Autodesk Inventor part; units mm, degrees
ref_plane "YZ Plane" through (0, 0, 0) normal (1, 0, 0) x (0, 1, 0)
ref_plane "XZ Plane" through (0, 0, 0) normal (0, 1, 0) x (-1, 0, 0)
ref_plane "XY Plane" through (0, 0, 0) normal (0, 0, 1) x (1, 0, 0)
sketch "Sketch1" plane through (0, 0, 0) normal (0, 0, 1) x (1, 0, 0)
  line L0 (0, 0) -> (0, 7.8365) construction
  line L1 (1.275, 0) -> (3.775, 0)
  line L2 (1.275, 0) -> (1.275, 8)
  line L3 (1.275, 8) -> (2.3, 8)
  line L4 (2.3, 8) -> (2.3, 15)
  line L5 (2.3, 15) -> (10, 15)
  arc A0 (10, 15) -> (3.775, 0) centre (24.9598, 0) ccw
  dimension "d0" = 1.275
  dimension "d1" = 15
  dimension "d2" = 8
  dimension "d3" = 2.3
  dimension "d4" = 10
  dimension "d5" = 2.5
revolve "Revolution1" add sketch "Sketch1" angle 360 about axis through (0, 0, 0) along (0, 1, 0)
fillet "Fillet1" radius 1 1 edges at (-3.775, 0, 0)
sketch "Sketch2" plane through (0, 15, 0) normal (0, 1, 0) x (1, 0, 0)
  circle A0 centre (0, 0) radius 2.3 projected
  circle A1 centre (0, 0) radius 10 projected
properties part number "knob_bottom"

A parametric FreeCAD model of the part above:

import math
import FreeCAD as App
import Part
import Sketcher


def edges_at(feature, points):
    """Names of the edges that pass closest to the given points."""
    edges = feature.Shape.Edges
    near = lambda p: min(range(len(edges)), key=lambda i: edges[i].distToShape(Part.Vertex(*p))[0])
    return sorted({f"Edge{near(p) + 1}" for p in points})

doc = App.newDocument("Part")
body = doc.addObject("PartDesign::Body", "Body")

# Sketch on XY plane
sketch1 = doc.addObject("Sketcher::SketchObject", "Sketch")
body.addObject(sketch1)
sketch1.AttachmentSupport = (doc.XY_Plane, [""])
sketch1.MapMode = "FlatFace"
sketch1.addGeometry([
    Part.LineSegment(App.Vector(1.275, 8, 0), App.Vector(1.275, 0, 0)),  # 0
    Part.LineSegment(App.Vector(1.275, 0, 0), App.Vector(3.775, 0, 0)),  # 1
    Part.ArcOfCircle(Part.Circle(App.Vector(24.9598, 0, 0), App.Vector(0, 0, 1), 21.184797), math.radians(134.923121), math.radians(180)),  # 2
    Part.LineSegment(App.Vector(10, 15, 0), App.Vector(2.3, 15, 0)),  # 3
    Part.LineSegment(App.Vector(2.3, 15, 0), App.Vector(2.3, 8, 0)),  # 4
    Part.LineSegment(App.Vector(2.3, 8, 0), App.Vector(1.275, 8, 0)),  # 5
], False)
sketch1.addConstraint([
    Sketcher.Constraint("Coincident", 0, 2, 1, 1),
    Sketcher.Constraint("Coincident", 1, 2, 2, 2),
    Sketcher.Constraint("Coincident", 2, 1, 3, 1),
    Sketcher.Constraint("Coincident", 3, 2, 4, 1),
    Sketcher.Constraint("Coincident", 4, 2, 5, 1),
    Sketcher.Constraint("Coincident", 5, 2, 0, 1),
    Sketcher.Constraint("Vertical", 0),
    Sketcher.Constraint("Horizontal", 1),
    Sketcher.Constraint("Horizontal", 3),
    Sketcher.Constraint("Vertical", 4),
    Sketcher.Constraint("Horizontal", 5),
    Sketcher.Constraint("PointOnObject", 2, 3, -1),
    Sketcher.Constraint("PointOnObject", 0, 2, -1),
    Sketcher.Constraint("DistanceY", 0, 2, 0, 1, 8.0),
    Sketcher.Constraint("DistanceX", 1, 1, 1, 2, 2.5),
    Sketcher.Constraint("DistanceX", -1, 1, 2, 1, 10.0),
    Sketcher.Constraint("DistanceY", -1, 1, 2, 1, 15.0),
    Sketcher.Constraint("DistanceX", -1, 1, 3, 2, 2.3),
    Sketcher.Constraint("DistanceX", -1, 1, 0, 2, 1.275),
])
revolution = doc.addObject("PartDesign::Revolution", "Revolution")
body.addObject(revolution)
revolution.Profile = sketch1
revolution.ReferenceAxis = (sketch1, ["V_Axis"])
revolution.Angle = 360
doc.recompute()

fillet = doc.addObject("PartDesign::Fillet", "Fillet")
body.addObject(fillet)
fillet.Base = (revolution, edges_at(revolution, [(-3.775, 0, 0)]))
fillet.Radius = 1

doc.recompute()
